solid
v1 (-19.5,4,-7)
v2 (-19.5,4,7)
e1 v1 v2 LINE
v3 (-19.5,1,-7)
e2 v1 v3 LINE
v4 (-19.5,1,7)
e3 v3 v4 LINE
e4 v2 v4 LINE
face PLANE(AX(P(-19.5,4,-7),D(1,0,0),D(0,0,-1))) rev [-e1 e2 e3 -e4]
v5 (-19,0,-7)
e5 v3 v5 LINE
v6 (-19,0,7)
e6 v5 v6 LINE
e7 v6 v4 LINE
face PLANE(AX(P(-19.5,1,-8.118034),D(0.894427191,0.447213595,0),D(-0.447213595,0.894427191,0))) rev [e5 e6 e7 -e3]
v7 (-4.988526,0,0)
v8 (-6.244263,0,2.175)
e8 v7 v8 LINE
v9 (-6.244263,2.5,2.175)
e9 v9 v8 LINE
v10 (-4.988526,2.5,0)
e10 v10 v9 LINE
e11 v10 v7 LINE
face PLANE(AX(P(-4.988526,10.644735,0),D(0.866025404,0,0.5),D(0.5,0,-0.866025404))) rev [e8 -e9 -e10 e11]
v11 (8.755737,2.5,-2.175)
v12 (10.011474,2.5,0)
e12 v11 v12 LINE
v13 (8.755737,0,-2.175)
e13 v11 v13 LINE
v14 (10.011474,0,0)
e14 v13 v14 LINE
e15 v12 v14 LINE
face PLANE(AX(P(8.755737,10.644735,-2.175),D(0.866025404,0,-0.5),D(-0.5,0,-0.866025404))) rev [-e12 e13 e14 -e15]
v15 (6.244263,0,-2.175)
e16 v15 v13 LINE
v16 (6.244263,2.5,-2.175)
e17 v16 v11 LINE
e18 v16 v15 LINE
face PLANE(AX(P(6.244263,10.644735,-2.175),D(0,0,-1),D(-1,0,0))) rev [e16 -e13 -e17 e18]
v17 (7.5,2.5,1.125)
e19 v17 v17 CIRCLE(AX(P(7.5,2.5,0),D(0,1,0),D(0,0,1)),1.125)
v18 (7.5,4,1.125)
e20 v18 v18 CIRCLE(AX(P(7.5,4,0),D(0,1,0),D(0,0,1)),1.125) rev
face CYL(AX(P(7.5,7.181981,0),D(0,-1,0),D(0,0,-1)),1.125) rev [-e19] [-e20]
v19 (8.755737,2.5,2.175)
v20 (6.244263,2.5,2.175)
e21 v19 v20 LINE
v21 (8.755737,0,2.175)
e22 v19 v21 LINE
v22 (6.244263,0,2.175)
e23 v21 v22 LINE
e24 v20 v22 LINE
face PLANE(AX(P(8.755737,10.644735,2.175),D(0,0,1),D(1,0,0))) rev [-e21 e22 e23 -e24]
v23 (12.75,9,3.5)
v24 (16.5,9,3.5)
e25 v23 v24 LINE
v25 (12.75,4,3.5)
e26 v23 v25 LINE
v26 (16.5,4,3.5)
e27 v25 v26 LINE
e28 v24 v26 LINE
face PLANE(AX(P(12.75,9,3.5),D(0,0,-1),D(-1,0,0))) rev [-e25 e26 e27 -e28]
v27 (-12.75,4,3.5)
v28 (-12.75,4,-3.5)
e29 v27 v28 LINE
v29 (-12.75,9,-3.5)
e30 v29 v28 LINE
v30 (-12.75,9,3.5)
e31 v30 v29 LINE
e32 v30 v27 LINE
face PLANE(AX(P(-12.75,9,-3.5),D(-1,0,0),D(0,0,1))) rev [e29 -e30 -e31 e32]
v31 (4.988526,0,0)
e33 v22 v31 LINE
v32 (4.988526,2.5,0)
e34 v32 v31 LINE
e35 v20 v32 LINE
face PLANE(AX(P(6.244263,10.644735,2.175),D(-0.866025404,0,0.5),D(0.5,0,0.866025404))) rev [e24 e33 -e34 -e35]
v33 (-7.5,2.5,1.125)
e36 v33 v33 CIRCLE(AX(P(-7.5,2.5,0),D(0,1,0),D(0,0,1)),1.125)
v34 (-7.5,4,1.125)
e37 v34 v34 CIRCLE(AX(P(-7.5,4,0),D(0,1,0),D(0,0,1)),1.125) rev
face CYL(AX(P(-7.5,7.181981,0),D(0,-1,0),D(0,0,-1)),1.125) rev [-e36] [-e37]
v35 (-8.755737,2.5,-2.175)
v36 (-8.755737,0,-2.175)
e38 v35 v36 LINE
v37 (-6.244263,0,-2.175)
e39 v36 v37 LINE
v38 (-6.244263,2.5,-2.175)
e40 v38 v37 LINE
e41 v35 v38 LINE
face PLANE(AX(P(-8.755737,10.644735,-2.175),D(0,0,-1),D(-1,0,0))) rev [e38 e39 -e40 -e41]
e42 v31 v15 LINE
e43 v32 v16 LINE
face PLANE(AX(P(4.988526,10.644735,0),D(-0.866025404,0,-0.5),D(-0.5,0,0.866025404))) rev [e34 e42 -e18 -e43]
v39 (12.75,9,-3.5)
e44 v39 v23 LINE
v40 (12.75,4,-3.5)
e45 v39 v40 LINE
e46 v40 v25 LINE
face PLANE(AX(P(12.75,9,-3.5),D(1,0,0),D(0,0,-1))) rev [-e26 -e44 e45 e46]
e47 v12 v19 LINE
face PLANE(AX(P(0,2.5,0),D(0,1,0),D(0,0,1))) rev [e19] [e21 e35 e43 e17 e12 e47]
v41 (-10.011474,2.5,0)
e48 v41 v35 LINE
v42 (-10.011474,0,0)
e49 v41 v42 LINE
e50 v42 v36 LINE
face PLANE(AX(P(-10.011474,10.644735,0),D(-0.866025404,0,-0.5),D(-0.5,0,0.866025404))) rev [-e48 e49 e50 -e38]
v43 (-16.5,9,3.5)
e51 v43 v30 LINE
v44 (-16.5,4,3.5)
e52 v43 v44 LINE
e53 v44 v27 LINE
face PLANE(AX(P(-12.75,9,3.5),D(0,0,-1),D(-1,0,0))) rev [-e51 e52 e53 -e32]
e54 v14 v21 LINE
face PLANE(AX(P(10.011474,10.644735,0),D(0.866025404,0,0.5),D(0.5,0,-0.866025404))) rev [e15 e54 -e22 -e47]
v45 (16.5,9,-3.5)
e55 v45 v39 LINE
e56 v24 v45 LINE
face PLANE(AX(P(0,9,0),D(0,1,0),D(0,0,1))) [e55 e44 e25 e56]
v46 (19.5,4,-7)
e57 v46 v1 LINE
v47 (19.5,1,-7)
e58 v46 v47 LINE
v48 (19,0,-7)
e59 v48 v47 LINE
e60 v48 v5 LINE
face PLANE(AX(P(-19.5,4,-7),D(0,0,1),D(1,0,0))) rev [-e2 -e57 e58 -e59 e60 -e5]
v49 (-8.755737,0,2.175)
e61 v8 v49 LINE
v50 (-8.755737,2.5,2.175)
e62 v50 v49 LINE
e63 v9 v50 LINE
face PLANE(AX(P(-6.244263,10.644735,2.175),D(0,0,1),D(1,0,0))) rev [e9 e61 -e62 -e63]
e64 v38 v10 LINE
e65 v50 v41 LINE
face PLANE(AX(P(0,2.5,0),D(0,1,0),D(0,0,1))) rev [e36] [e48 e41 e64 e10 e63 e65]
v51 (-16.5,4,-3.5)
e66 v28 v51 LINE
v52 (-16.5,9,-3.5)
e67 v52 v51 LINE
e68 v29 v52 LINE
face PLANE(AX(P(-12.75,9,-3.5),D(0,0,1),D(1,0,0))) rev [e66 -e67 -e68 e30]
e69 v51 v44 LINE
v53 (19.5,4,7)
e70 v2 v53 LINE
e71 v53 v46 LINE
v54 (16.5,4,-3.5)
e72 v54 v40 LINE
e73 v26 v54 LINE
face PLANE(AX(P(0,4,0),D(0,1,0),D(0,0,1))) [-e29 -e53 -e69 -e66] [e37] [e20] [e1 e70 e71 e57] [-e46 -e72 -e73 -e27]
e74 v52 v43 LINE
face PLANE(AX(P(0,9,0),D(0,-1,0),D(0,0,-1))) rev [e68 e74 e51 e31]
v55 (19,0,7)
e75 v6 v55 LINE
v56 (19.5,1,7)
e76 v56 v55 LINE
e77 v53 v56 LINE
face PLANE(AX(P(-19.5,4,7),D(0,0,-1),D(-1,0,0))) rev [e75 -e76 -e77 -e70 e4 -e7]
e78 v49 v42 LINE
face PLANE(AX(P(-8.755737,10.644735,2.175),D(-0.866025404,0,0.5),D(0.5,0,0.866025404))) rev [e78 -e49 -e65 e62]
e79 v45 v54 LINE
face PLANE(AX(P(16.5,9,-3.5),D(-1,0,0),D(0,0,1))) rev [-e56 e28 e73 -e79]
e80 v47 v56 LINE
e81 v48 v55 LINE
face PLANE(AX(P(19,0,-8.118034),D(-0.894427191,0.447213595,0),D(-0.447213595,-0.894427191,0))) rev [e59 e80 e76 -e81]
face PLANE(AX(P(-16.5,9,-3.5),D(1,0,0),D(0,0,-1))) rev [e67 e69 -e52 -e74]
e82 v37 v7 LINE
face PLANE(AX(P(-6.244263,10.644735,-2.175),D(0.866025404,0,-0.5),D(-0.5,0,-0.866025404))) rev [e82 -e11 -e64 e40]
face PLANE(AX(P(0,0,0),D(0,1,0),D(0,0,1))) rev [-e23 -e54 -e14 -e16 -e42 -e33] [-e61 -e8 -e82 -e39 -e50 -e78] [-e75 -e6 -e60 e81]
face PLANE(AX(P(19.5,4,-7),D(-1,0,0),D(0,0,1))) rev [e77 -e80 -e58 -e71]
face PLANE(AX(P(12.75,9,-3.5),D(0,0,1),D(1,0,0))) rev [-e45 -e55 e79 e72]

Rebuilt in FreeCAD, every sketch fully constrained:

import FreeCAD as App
import Part
import Sketcher

V = App.Vector
Q = App.Units.Quantity


def add_polygon(sketch, points):
    """Adds a closed chain of lines whose ends are joined by coincident constraints."""
    first, n = sketch.GeometryCount, len(points)
    for a, b in zip(points, points[1:] + points[:1]):
        sketch.addGeometry(Part.LineSegment(App.Vector(*a, 0), App.Vector(*b, 0)), False)
    for i in range(n):
        sketch.addConstraint(Sketcher.Constraint("Coincident", first + i, 2, first + (i + 1) % n, 1))

doc = App.newDocument("Part")
body = doc.addObject("PartDesign::Body", "Body")

sketch1 = body.newObject("Sketcher::SketchObject", "Sketch")
sketch1.AttachmentSupport = (doc.getObject("XZ_Plane"), [""])
sketch1.MapMode = "FlatFace"
add_polygon(sketch1, [(-20, -7), (-20, 7), (20, 7), (20, -7)])
sketch1.addConstraint([
    Sketcher.Constraint("Vertical", 0),
    Sketcher.Constraint("Horizontal", 1),
    Sketcher.Constraint("Vertical", 2),
    Sketcher.Constraint("Horizontal", 3),
    Sketcher.Constraint("Symmetric", 0, 2, 2, 2, -1, 1),
    Sketcher.Constraint("DistanceX", 1, 1, 1, 2, Q("39 mm")),
    Sketcher.Constraint("DistanceY", 0, 1, 0, 2, Q("14 mm")),
])
pad1 = body.newObject("PartDesign::Pad", "Pad")
pad1.Profile = sketch1
pad1.Length = 4
pad1.Reversed = True

sketch2 = body.newObject("Sketcher::SketchObject", "Sketch001")
sketch2.AttachmentSupport = (doc.getObject("XZ_Plane"), [""])
sketch2.MapMode = "FlatFace"
add_polygon(sketch2, [(10, 0), (8.8, 2.2), (6.2, 2.2), (5, 0), (6.2, -2.2), (8.8, -2.2)])
add_polygon(sketch2, [(-5, 0), (-6.2, 2.2), (-8.8, 2.2), (-10, 0), (-8.8, -2.2), (-6.2, -2.2)])
sketch2.addConstraint([
    Sketcher.Constraint("Horizontal", 1),
    Sketcher.Constraint("Horizontal", 4),
    Sketcher.Constraint("Horizontal", 7),
    Sketcher.Constraint("Horizontal", 10),
    Sketcher.Constraint("Symmetric", 3, 2, 6, 2, -1, 1),
    Sketcher.Constraint("Symmetric", 5, 2, 8, 2, -1, 1),
    Sketcher.Constraint("Symmetric", 0, 2, 9, 2, -1, 1),
    Sketcher.Constraint("Symmetric", 2, 2, 11, 2, -1, 1),
    Sketcher.Constraint("Symmetric", 1, 2, 6, 2, -2),
    Sketcher.Constraint("PointOnObject", 2, 2, -1),
    Sketcher.Constraint("PointOnObject", 5, 2, -1),
    Sketcher.Constraint("Parallel", 0, 3),
    Sketcher.Constraint("Parallel", 2, 5),
    Sketcher.Constraint("Parallel", 5, 8),
    Sketcher.Constraint("Parallel", 8, 11),
    Sketcher.Constraint("Angle", 0, Q("120 deg")),
    Sketcher.Constraint("DistanceX", 6, 2, 0, 2, Q("15 mm")),
    Sketcher.Constraint("DistanceY", 3, 2, 1, 2, Q("4.35 mm")),
    Sketcher.Constraint("DistanceX", 1, 2, 1, 1, Q("2.511474 mm")),
])
pocket1 = body.newObject("PartDesign::Pocket", "Pocket")
pocket1.Profile = sketch2
pocket1.Length = 2.5

sketch3 = body.newObject("Sketcher::SketchObject", "Sketch002")
sketch3.AttachmentSupport = (doc.getObject("XZ_Plane"), [""])
sketch3.MapMode = "FlatFace"
sketch3.addGeometry([
    Part.Circle(V(-7.5, 0, 0), V(0, 0, 1), 1.1),
    Part.Circle(V(7.5, 0, 0), V(0, 0, 1), 1.1),
], False)
sketch3.addConstraint([
    Sketcher.Constraint("Equal", 0, 1),
    Sketcher.Constraint("Symmetric", 0, 3, 1, 3, -1, 1),
    Sketcher.Constraint("PointOnObject", 0, 3, -1),
    Sketcher.Constraint("Diameter", 0, Q("2.25 mm")),
    Sketcher.Constraint("DistanceX", 0, 3, 1, 3, Q("15 mm")),
])
pocket2 = body.newObject("PartDesign::Pocket", "Pocket001")
pocket2.Profile = sketch3
pocket2.Length = 4

sketch4 = body.newObject("Sketcher::SketchObject", "Sketch003")
sketch4.AttachmentSupport = (doc.getObject("XZ_Plane"), [""])
sketch4.MapMode = "FlatFace"
sketch4.AttachmentOffset = App.Placement(V(0, 0, -4), App.Rotation())
add_polygon(sketch4, [(-16.5, -3.5), (-16.5, 3.5), (-12.8, 3.5), (-12.8, -3.5)])
add_polygon(sketch4, [(12.8, -3.5), (12.8, 3.5), (16.5, 3.5), (16.5, -3.5)])
sketch4.addConstraint([
    Sketcher.Constraint("Vertical", 0),
    Sketcher.Constraint("Horizontal", 1),
    Sketcher.Constraint("Vertical", 2),
    Sketcher.Constraint("Horizontal", 3),
    Sketcher.Constraint("Vertical", 4),
    Sketcher.Constraint("Horizontal", 5),
    Sketcher.Constraint("Vertical", 6),
    Sketcher.Constraint("Horizontal", 7),
    Sketcher.Constraint("Symmetric", 2, 2, 4, 2, -1, 1),
    Sketcher.Constraint("Symmetric", 0, 2, 6, 2, -1, 1),
    Sketcher.Constraint("Horizontal", 1, 2, 4, 2),
    Sketcher.Constraint("DistanceY", 0, 1, 0, 2, Q("7 mm")),
    Sketcher.Constraint("DistanceX", 0, 2, 5, 2, Q("33 mm")),
    Sketcher.Constraint("DistanceX", 1, 1, 1, 2, Q("3.75 mm")),
])
pad2 = body.newObject("PartDesign::Pad", "Pad001")
pad2.Profile = sketch4
pad2.Length = 5
pad2.Reversed = True

sketch5 = body.newObject("Sketcher::SketchObject", "Sketch004")
sketch5.AttachmentSupport = (doc.getObject("XY_Plane"), [""])
sketch5.MapMode = "FlatFace"
sketch5.AttachmentOffset = App.Placement(V(0, 0, 7), App.Rotation())
add_polygon(sketch5, [(-19, 0), (-19.5, 1), (-19.5, 0)])
add_polygon(sketch5, [(19.5, 0), (19.5, 1), (19, 0)])
sketch5.addConstraint([
    Sketcher.Constraint("Vertical", 1),
    Sketcher.Constraint("Horizontal", 2),
    Sketcher.Constraint("Vertical", 3),
    Sketcher.Constraint("Horizontal", 5),
    Sketcher.Constraint("Symmetric", 2, 2, 4, 2, -1, 1),
    Sketcher.Constraint("Symmetric", 0, 2, 3, 2, -2),
    Sketcher.Constraint("PointOnObject", 1, 2, -1),
    Sketcher.Constraint("DistanceY", 1, 2, 1, 1, Q("1 mm")),
    Sketcher.Constraint("DistanceX", 2, 1, 2, 2, Q("0.5 mm")),
    Sketcher.Constraint("DistanceX", 2, 2, -1, 1, Q("19 mm")),
])
pocket3 = body.newObject("PartDesign::Pocket", "Pocket002")
pocket3.Profile = sketch5
pocket3.Length = 14

doc.recompute()
